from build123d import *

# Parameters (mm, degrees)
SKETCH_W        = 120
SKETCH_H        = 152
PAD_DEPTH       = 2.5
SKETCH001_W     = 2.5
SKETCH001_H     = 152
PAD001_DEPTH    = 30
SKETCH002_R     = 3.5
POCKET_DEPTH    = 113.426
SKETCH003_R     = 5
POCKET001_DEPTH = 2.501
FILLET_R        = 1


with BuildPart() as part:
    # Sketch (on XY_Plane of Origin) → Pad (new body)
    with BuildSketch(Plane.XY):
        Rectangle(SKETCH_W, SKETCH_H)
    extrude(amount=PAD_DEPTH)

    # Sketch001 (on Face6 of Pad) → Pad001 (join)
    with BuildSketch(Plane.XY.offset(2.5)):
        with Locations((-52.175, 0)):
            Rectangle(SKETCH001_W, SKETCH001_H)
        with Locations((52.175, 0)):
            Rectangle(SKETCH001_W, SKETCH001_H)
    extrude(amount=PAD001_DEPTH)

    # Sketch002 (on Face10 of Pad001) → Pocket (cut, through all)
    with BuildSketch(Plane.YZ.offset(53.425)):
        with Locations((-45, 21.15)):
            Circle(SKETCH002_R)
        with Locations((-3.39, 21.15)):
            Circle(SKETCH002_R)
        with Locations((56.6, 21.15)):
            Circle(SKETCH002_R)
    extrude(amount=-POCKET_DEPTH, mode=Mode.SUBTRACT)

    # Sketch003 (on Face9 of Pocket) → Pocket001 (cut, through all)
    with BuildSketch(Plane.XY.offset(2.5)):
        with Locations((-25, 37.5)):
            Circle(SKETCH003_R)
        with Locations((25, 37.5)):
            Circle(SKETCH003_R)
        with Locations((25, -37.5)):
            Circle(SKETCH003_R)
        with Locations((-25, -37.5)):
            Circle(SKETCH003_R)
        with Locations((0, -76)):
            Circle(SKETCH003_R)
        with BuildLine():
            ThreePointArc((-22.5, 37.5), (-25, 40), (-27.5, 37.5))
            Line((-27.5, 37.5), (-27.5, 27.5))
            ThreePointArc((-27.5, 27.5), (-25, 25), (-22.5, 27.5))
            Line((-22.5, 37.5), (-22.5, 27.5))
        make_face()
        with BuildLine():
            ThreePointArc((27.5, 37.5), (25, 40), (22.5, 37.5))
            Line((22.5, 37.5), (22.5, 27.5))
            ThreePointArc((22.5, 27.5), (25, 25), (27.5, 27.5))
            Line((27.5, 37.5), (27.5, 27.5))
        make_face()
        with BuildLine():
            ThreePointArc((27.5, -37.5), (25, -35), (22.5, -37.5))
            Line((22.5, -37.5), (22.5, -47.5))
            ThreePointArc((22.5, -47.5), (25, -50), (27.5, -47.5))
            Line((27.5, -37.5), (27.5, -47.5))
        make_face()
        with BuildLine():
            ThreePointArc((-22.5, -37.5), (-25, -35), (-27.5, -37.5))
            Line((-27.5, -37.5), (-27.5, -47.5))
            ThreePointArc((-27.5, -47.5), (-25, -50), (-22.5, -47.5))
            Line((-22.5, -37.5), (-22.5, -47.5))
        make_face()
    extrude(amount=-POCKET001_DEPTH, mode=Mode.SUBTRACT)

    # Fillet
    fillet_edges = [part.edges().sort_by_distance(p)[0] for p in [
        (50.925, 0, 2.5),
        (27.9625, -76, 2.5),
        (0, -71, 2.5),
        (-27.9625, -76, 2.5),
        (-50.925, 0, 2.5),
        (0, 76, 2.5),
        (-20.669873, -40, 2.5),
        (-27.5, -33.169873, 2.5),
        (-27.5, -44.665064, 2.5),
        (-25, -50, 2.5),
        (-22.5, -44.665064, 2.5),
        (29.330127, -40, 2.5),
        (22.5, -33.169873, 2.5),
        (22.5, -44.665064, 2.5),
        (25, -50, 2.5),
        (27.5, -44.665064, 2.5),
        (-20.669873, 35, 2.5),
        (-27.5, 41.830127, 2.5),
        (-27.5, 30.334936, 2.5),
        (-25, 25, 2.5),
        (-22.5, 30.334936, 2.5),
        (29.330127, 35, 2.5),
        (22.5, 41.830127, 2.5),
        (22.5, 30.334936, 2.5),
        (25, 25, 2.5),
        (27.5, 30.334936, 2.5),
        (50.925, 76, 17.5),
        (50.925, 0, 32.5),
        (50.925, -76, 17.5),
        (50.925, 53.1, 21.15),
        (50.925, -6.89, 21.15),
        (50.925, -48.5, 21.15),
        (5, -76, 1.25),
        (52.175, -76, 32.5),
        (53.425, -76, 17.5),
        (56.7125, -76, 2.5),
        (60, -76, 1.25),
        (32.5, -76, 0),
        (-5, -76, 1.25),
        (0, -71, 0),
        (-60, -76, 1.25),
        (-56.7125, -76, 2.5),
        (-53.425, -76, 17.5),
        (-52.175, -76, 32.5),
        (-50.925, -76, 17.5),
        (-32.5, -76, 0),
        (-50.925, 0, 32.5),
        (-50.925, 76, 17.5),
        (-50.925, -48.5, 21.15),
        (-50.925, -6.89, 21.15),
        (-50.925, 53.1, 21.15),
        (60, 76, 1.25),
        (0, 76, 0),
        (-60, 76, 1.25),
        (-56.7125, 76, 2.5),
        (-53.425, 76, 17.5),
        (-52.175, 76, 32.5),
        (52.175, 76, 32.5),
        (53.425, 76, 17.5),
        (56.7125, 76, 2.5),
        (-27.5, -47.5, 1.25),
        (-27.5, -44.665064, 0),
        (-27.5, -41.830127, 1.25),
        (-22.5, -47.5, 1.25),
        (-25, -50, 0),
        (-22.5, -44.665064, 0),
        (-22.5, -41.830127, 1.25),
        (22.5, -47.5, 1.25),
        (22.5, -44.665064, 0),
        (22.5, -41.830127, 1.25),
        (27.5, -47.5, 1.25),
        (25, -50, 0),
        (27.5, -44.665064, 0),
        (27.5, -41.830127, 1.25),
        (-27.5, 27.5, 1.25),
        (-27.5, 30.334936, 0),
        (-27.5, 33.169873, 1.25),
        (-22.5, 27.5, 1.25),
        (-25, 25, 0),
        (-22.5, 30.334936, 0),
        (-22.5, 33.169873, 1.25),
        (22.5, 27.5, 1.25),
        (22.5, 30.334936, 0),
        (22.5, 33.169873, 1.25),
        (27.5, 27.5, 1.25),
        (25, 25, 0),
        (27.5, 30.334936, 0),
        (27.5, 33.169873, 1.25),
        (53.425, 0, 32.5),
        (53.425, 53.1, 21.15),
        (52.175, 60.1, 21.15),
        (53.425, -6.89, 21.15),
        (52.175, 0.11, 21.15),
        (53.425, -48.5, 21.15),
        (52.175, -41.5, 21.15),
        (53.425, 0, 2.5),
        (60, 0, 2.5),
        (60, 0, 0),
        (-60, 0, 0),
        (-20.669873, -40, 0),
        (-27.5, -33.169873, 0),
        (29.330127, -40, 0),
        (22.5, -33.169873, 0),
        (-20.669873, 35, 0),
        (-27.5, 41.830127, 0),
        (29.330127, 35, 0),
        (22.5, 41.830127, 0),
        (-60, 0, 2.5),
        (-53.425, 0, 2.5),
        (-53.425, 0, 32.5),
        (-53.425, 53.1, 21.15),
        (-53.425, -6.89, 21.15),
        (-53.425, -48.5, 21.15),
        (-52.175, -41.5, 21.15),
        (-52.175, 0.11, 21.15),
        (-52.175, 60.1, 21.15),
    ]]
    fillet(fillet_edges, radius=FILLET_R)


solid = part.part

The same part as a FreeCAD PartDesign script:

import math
import FreeCAD as App
import Part
import Sketcher

doc = App.newDocument("Part")
params = doc.addObject("Spreadsheet::Sheet", "Params")
for row, (alias, value) in enumerate([
    ("sketch1_width", "120 mm"),
    ("sketch1_height", "152 mm"),
    ("pad1_length", "2.5 mm"),
    ("sketch2_height", "152 mm"),
    ("sketch2_width", "2.5 mm"),
    ("pad2_length", "30 mm"),
    ("sketch3_diameter", "7 mm"),
    ("sketch4_diameter", "10 mm"),
    ("sketch4_radius", "2.5 mm"),
    ("fillet_radius", "1 mm"),
], start=1):
    params.set(f"A{row}", alias)
    params.set(f"B{row}", "=" + value)
    params.setAlias(f"B{row}", alias)

body = doc.addObject("PartDesign::Body", "Body")

sketch1 = doc.addObject("Sketcher::SketchObject", "Sketch")
body.addObject(sketch1)
sketch1.AttachmentSupport = (doc.XY_Plane, [""])
sketch1.MapMode = "FlatFace"
sketch1.addGeometry(Part.LineSegment(App.Vector(-60, 76, 0), App.Vector(-60, -76, 0)), False)
sketch1.addGeometry(Part.LineSegment(App.Vector(-60, -76, 0), App.Vector(60, -76, 0)), False)
sketch1.addGeometry(Part.LineSegment(App.Vector(60, -76, 0), App.Vector(60, 76, 0)), False)
sketch1.addGeometry(Part.LineSegment(App.Vector(60, 76, 0), App.Vector(-60, 76, 0)), False)
sketch1.addConstraint(Sketcher.Constraint("Coincident", 0, 2, 1, 1))
sketch1.addConstraint(Sketcher.Constraint("Coincident", 1, 2, 2, 1))
sketch1.addConstraint(Sketcher.Constraint("Coincident", 2, 2, 3, 1))
sketch1.addConstraint(Sketcher.Constraint("Coincident", 3, 2, 0, 1))
sketch1.addConstraint(Sketcher.Constraint("Vertical", 0))
sketch1.addConstraint(Sketcher.Constraint("Horizontal", 1))
sketch1.addConstraint(Sketcher.Constraint("Vertical", 2))
sketch1.addConstraint(Sketcher.Constraint("Horizontal", 3))
sketch1.addConstraint(Sketcher.Constraint("Symmetric", 0, 2, 2, 2, -1, 1))
sketch1.addConstraint(Sketcher.Constraint("DistanceX", 1, 1, 1, 2, 120.0))
sketch1.addConstraint(Sketcher.Constraint("DistanceY", 0, 2, 0, 1, 152.0))
sketch1.setExpression("Constraints[9]", "Params.sketch1_width")
sketch1.setExpression("Constraints[10]", "Params.sketch1_height")
pad1 = doc.addObject("PartDesign::Pad", "Pad")
body.addObject(pad1)
pad1.Profile = sketch1
pad1.setExpression("Length", "Params.pad1_length")

sketch2 = doc.addObject("Sketcher::SketchObject", "Sketch001")
body.addObject(sketch2)
sketch2.AttachmentSupport = (doc.XY_Plane, [""])
sketch2.MapMode = "FlatFace"
sketch2.AttachmentOffset = App.Placement(App.Vector(0, 0, 2.5), App.Rotation())
sketch2.addGeometry(Part.LineSegment(App.Vector(-53.4, 76, 0), App.Vector(-53.4, -76, 0)), False)
sketch2.addGeometry(Part.LineSegment(App.Vector(-53.4, -76, 0), App.Vector(-50.9, -76, 0)), False)
sketch2.addGeometry(Part.LineSegment(App.Vector(-50.9, -76, 0), App.Vector(-50.9, 76, 0)), False)
sketch2.addGeometry(Part.LineSegment(App.Vector(-50.9, 76, 0), App.Vector(-53.4, 76, 0)), False)
sketch2.addGeometry(Part.LineSegment(App.Vector(50.9, 76, 0), App.Vector(50.9, -76, 0)), False)
sketch2.addGeometry(Part.LineSegment(App.Vector(50.9, -76, 0), App.Vector(53.4, -76, 0)), False)
sketch2.addGeometry(Part.LineSegment(App.Vector(53.4, -76, 0), App.Vector(53.4, 76, 0)), False)
sketch2.addGeometry(Part.LineSegment(App.Vector(53.4, 76, 0), App.Vector(50.9, 76, 0)), False)
sketch2.addConstraint(Sketcher.Constraint("Coincident", 0, 2, 1, 1))
sketch2.addConstraint(Sketcher.Constraint("Coincident", 1, 2, 2, 1))
sketch2.addConstraint(Sketcher.Constraint("Coincident", 2, 2, 3, 1))
sketch2.addConstraint(Sketcher.Constraint("Coincident", 3, 2, 0, 1))
sketch2.addConstraint(Sketcher.Constraint("Coincident", 4, 2, 5, 1))
sketch2.addConstraint(Sketcher.Constraint("Coincident", 5, 2, 6, 1))
sketch2.addConstraint(Sketcher.Constraint("Coincident", 6, 2, 7, 1))
sketch2.addConstraint(Sketcher.Constraint("Coincident", 7, 2, 4, 1))
sketch2.addConstraint(Sketcher.Constraint("Vertical", 0))
sketch2.addConstraint(Sketcher.Constraint("Horizontal", 1))
sketch2.addConstraint(Sketcher.Constraint("Vertical", 2))
sketch2.addConstraint(Sketcher.Constraint("Horizontal", 3))
sketch2.addConstraint(Sketcher.Constraint("Vertical", 4))
sketch2.addConstraint(Sketcher.Constraint("Horizontal", 5))
sketch2.addConstraint(Sketcher.Constraint("Vertical", 6))
sketch2.addConstraint(Sketcher.Constraint("Horizontal", 7))
sketch2.addConstraint(Sketcher.Constraint("Symmetric", 2, 2, 4, 2, -1, 1))
sketch2.addConstraint(Sketcher.Constraint("Symmetric", 0, 2, 6, 2, -1, 1))
sketch2.addConstraint(Sketcher.Constraint("Horizontal", 1, 2, 4, 2))
sketch2.addConstraint(Sketcher.Constraint("DistanceY", 0, 2, 0, 1, 152.0))
sketch2.addConstraint(Sketcher.Constraint("DistanceX", 1, 1, 1, 2, 2.5))
sketch2.addConstraint(Sketcher.Constraint("DistanceX", 1, 2, 4, 2, 101.85))
sketch2.setExpression("Constraints[19]", "Params.sketch2_height")
sketch2.setExpression("Constraints[20]", "Params.sketch2_width")
pad2 = doc.addObject("PartDesign::Pad", "Pad001")
body.addObject(pad2)
pad2.Profile = sketch2
pad2.setExpression("Length", "Params.pad2_length")

sketch3 = doc.addObject("Sketcher::SketchObject", "Sketch002")
body.addObject(sketch3)
sketch3.AttachmentSupport = (doc.YZ_Plane, [""])
sketch3.MapMode = "FlatFace"
sketch3.AttachmentOffset = App.Placement(App.Vector(0, 0, 53.425), App.Rotation())
sketch3.addGeometry(Part.Circle(App.Vector(-45, 21.1, 0), App.Vector(0, 0, 1), 3.5), False)
sketch3.addGeometry(Part.Circle(App.Vector(-3.4, 21.1, 0), App.Vector(0, 0, 1), 3.5), False)
sketch3.addGeometry(Part.Circle(App.Vector(56.6, 21.1, 0), App.Vector(0, 0, 1), 3.5), False)
sketch3.addConstraint(Sketcher.Constraint("Equal", 0, 1))
sketch3.addConstraint(Sketcher.Constraint("Equal", 1, 2))
sketch3.addConstraint(Sketcher.Constraint("Horizontal", 0, 3, 1, 3))
sketch3.addConstraint(Sketcher.Constraint("Horizontal", 1, 3, 2, 3))
sketch3.addConstraint(Sketcher.Constraint("Diameter", 0, 7.0))
sketch3.addConstraint(Sketcher.Constraint("DistanceX", 0, 3, -1, 1, 45.0))
sketch3.addConstraint(Sketcher.Constraint("DistanceX", -1, 1, 2, 3, 56.6))
sketch3.addConstraint(Sketcher.Constraint("DistanceY", -1, 1, 0, 3, 21.15))
sketch3.addConstraint(Sketcher.Constraint("DistanceX", 1, 3, -1, 1, 3.39))
sketch3.setExpression("Constraints[4]", "Params.sketch3_diameter")
pocket1 = doc.addObject("PartDesign::Pocket", "Pocket")
body.addObject(pocket1)
pocket1.Profile = sketch3
pocket1.Type = "ThroughAll"

sketch4 = doc.addObject("Sketcher::SketchObject", "Sketch003")
body.addObject(sketch4)
sketch4.AttachmentSupport = (doc.XY_Plane, [""])
sketch4.MapMode = "FlatFace"
sketch4.AttachmentOffset = App.Placement(App.Vector(0, 0, 2.5), App.Rotation())
sketch4.addGeometry(Part.ArcOfCircle(Part.Circle(App.Vector(-25, 37.5, 0), App.Vector(0, 0, 1), 5), math.radians(-60), math.radians(240)), False)
sketch4.addGeometry(Part.LineSegment(App.Vector(-27.5, 33.2, 0), App.Vector(-27.5, 27.5, 0)), False)
sketch4.addGeometry(Part.ArcOfCircle(Part.Circle(App.Vector(-25, 27.5, 0), App.Vector(0, 0, 1), 2.5), math.radians(180), math.radians(360)), False)
sketch4.addGeometry(Part.LineSegment(App.Vector(-22.5, 27.5, 0), App.Vector(-22.5, 33.2, 0)), False)
sketch4.addGeometry(Part.ArcOfCircle(Part.Circle(App.Vector(25, 37.5, 0), App.Vector(0, 0, 1), 5), math.radians(-60), math.radians(240)), False)
sketch4.addGeometry(Part.LineSegment(App.Vector(22.5, 33.2, 0), App.Vector(22.5, 27.5, 0)), False)
sketch4.addGeometry(Part.ArcOfCircle(Part.Circle(App.Vector(25, 27.5, 0), App.Vector(0, 0, 1), 2.5), math.radians(180), math.radians(360)), False)
sketch4.addGeometry(Part.LineSegment(App.Vector(27.5, 27.5, 0), App.Vector(27.5, 33.2, 0)), False)
sketch4.addGeometry(Part.ArcOfCircle(Part.Circle(App.Vector(25, -37.5, 0), App.Vector(0, 0, 1), 5), math.radians(-60), math.radians(240)), False)
sketch4.addGeometry(Part.LineSegment(App.Vector(22.5, -41.8, 0), App.Vector(22.5, -47.5, 0)), False)
sketch4.addGeometry(Part.ArcOfCircle(Part.Circle(App.Vector(25, -47.5, 0), App.Vector(0, 0, 1), 2.5), math.radians(180), math.radians(360)), False)
sketch4.addGeometry(Part.LineSegment(App.Vector(27.5, -47.5, 0), App.Vector(27.5, -41.8, 0)), False)
sketch4.addGeometry(Part.ArcOfCircle(Part.Circle(App.Vector(-25, -37.5, 0), App.Vector(0, 0, 1), 5), math.radians(-60), math.radians(240)), False)
sketch4.addGeometry(Part.LineSegment(App.Vector(-27.5, -41.8, 0), App.Vector(-27.5, -47.5, 0)), False)
sketch4.addGeometry(Part.ArcOfCircle(Part.Circle(App.Vector(-25, -47.5, 0), App.Vector(0, 0, 1), 2.5), math.radians(180), math.radians(360)), False)
sketch4.addGeometry(Part.LineSegment(App.Vector(-22.5, -47.5, 0), App.Vector(-22.5, -41.8, 0)), False)
sketch4.addGeometry(Part.Circle(App.Vector(0, -76, 0), App.Vector(0, 0, 1), 5), False)
sketch4.addConstraint(Sketcher.Constraint("Coincident", 0, 2, 1, 1))
sketch4.addConstraint(Sketcher.Constraint("Tangent", 1, 2, 2, 1))
sketch4.addConstraint(Sketcher.Constraint("Tangent", 2, 2, 3, 1))
sketch4.addConstraint(Sketcher.Constraint("Coincident", 3, 2, 0, 1))
sketch4.addConstraint(Sketcher.Constraint("Coincident", 4, 2, 5, 1))
sketch4.addConstraint(Sketcher.Constraint("Tangent", 5, 2, 6, 1))
sketch4.addConstraint(Sketcher.Constraint("Tangent", 6, 2, 7, 1))
sketch4.addConstraint(Sketcher.Constraint("Coincident", 7, 2, 4, 1))
sketch4.addConstraint(Sketcher.Constraint("Coincident", 8, 2, 9, 1))
sketch4.addConstraint(Sketcher.Constraint("Tangent", 9, 2, 10, 1))
sketch4.addConstraint(Sketcher.Constraint("Tangent", 10, 2, 11, 1))
sketch4.addConstraint(Sketcher.Constraint("Coincident", 11, 2, 8, 1))
sketch4.addConstraint(Sketcher.Constraint("Coincident", 12, 2, 13, 1))
sketch4.addConstraint(Sketcher.Constraint("Tangent", 13, 2, 14, 1))
sketch4.addConstraint(Sketcher.Constraint("Tangent", 14, 2, 15, 1))
sketch4.addConstraint(Sketcher.Constraint("Coincident", 15, 2, 12, 1))
sketch4.addConstraint(Sketcher.Constraint("Vertical", 1))
sketch4.addConstraint(Sketcher.Constraint("Vertical", 3))
sketch4.addConstraint(Sketcher.Constraint("Vertical", 5))
sketch4.addConstraint(Sketcher.Constraint("Vertical", 7))
sketch4.addConstraint(Sketcher.Constraint("Vertical", 9))
sketch4.addConstraint(Sketcher.Constraint("Vertical", 11))
sketch4.addConstraint(Sketcher.Constraint("Vertical", 13))
sketch4.addConstraint(Sketcher.Constraint("Vertical", 15))
sketch4.addConstraint(Sketcher.Constraint("Equal", 0, 4))
sketch4.addConstraint(Sketcher.Constraint("Equal", 2, 6))
sketch4.addConstraint(Sketcher.Constraint("Equal", 4, 8))
sketch4.addConstraint(Sketcher.Constraint("Equal", 6, 10))
sketch4.addConstraint(Sketcher.Constraint("Equal", 8, 12))
sketch4.addConstraint(Sketcher.Constraint("Equal", 10, 14))
sketch4.addConstraint(Sketcher.Constraint("Equal", 12, 16))
sketch4.addConstraint(Sketcher.Constraint("Symmetric", 0, 3, 8, 3, -1, 1))
sketch4.addConstraint(Sketcher.Constraint("Symmetric", 4, 3, 12, 3, -1, 1))
sketch4.addConstraint(Sketcher.Constraint("Symmetric", 0, 3, 4, 3, -2))
sketch4.addConstraint(Sketcher.Constraint("Symmetric", 2, 3, 6, 3, -2))
sketch4.addConstraint(Sketcher.Constraint("Symmetric", 10, 3, 14, 3, -2))
sketch4.addConstraint(Sketcher.Constraint("PointOnObject", 16, 3, -2))
sketch4.addConstraint(Sketcher.Constraint("Horizontal", 0, 2, 3, 2))
sketch4.addConstraint(Sketcher.Constraint("Horizontal", 8, 2, 11, 2))
sketch4.addConstraint(Sketcher.Constraint("Equal", 7, 9))
sketch4.addConstraint(Sketcher.Constraint("Diameter", 16, 10.0))
sketch4.addConstraint(Sketcher.Constraint("Radius", 2, 2.5))
sketch4.addConstraint(Sketcher.Constraint("DistanceX", 0, 3, -1, 1, 25.0))
sketch4.addConstraint(Sketcher.Constraint("DistanceY", 16, 3, -1, 1, 76.0))
sketch4.addConstraint(Sketcher.Constraint("DistanceY", 2, 3, 0, 3, 10.0))
sketch4.addConstraint(Sketcher.Constraint("DistanceY", 8, 3, 6, 3, 65.0))
sketch4.setExpression("Constraints[40]", "Params.sketch4_diameter")
sketch4.setExpression("Constraints[41]", "Params.sketch4_radius")
pocket2 = doc.addObject("PartDesign::Pocket", "Pocket001")
body.addObject(pocket2)
pocket2.Profile = sketch4
pocket2.Type = "ThroughAll"
doc.recompute()

fillet = doc.addObject("PartDesign::Fillet", "Fillet")
body.addObject(fillet)
fillet.Base = (pocket2, ["Edge1"])
fillet.UseAllEdges = True
fillet.setExpression("Radius", "Params.fillet_radius")

doc.recompute()
